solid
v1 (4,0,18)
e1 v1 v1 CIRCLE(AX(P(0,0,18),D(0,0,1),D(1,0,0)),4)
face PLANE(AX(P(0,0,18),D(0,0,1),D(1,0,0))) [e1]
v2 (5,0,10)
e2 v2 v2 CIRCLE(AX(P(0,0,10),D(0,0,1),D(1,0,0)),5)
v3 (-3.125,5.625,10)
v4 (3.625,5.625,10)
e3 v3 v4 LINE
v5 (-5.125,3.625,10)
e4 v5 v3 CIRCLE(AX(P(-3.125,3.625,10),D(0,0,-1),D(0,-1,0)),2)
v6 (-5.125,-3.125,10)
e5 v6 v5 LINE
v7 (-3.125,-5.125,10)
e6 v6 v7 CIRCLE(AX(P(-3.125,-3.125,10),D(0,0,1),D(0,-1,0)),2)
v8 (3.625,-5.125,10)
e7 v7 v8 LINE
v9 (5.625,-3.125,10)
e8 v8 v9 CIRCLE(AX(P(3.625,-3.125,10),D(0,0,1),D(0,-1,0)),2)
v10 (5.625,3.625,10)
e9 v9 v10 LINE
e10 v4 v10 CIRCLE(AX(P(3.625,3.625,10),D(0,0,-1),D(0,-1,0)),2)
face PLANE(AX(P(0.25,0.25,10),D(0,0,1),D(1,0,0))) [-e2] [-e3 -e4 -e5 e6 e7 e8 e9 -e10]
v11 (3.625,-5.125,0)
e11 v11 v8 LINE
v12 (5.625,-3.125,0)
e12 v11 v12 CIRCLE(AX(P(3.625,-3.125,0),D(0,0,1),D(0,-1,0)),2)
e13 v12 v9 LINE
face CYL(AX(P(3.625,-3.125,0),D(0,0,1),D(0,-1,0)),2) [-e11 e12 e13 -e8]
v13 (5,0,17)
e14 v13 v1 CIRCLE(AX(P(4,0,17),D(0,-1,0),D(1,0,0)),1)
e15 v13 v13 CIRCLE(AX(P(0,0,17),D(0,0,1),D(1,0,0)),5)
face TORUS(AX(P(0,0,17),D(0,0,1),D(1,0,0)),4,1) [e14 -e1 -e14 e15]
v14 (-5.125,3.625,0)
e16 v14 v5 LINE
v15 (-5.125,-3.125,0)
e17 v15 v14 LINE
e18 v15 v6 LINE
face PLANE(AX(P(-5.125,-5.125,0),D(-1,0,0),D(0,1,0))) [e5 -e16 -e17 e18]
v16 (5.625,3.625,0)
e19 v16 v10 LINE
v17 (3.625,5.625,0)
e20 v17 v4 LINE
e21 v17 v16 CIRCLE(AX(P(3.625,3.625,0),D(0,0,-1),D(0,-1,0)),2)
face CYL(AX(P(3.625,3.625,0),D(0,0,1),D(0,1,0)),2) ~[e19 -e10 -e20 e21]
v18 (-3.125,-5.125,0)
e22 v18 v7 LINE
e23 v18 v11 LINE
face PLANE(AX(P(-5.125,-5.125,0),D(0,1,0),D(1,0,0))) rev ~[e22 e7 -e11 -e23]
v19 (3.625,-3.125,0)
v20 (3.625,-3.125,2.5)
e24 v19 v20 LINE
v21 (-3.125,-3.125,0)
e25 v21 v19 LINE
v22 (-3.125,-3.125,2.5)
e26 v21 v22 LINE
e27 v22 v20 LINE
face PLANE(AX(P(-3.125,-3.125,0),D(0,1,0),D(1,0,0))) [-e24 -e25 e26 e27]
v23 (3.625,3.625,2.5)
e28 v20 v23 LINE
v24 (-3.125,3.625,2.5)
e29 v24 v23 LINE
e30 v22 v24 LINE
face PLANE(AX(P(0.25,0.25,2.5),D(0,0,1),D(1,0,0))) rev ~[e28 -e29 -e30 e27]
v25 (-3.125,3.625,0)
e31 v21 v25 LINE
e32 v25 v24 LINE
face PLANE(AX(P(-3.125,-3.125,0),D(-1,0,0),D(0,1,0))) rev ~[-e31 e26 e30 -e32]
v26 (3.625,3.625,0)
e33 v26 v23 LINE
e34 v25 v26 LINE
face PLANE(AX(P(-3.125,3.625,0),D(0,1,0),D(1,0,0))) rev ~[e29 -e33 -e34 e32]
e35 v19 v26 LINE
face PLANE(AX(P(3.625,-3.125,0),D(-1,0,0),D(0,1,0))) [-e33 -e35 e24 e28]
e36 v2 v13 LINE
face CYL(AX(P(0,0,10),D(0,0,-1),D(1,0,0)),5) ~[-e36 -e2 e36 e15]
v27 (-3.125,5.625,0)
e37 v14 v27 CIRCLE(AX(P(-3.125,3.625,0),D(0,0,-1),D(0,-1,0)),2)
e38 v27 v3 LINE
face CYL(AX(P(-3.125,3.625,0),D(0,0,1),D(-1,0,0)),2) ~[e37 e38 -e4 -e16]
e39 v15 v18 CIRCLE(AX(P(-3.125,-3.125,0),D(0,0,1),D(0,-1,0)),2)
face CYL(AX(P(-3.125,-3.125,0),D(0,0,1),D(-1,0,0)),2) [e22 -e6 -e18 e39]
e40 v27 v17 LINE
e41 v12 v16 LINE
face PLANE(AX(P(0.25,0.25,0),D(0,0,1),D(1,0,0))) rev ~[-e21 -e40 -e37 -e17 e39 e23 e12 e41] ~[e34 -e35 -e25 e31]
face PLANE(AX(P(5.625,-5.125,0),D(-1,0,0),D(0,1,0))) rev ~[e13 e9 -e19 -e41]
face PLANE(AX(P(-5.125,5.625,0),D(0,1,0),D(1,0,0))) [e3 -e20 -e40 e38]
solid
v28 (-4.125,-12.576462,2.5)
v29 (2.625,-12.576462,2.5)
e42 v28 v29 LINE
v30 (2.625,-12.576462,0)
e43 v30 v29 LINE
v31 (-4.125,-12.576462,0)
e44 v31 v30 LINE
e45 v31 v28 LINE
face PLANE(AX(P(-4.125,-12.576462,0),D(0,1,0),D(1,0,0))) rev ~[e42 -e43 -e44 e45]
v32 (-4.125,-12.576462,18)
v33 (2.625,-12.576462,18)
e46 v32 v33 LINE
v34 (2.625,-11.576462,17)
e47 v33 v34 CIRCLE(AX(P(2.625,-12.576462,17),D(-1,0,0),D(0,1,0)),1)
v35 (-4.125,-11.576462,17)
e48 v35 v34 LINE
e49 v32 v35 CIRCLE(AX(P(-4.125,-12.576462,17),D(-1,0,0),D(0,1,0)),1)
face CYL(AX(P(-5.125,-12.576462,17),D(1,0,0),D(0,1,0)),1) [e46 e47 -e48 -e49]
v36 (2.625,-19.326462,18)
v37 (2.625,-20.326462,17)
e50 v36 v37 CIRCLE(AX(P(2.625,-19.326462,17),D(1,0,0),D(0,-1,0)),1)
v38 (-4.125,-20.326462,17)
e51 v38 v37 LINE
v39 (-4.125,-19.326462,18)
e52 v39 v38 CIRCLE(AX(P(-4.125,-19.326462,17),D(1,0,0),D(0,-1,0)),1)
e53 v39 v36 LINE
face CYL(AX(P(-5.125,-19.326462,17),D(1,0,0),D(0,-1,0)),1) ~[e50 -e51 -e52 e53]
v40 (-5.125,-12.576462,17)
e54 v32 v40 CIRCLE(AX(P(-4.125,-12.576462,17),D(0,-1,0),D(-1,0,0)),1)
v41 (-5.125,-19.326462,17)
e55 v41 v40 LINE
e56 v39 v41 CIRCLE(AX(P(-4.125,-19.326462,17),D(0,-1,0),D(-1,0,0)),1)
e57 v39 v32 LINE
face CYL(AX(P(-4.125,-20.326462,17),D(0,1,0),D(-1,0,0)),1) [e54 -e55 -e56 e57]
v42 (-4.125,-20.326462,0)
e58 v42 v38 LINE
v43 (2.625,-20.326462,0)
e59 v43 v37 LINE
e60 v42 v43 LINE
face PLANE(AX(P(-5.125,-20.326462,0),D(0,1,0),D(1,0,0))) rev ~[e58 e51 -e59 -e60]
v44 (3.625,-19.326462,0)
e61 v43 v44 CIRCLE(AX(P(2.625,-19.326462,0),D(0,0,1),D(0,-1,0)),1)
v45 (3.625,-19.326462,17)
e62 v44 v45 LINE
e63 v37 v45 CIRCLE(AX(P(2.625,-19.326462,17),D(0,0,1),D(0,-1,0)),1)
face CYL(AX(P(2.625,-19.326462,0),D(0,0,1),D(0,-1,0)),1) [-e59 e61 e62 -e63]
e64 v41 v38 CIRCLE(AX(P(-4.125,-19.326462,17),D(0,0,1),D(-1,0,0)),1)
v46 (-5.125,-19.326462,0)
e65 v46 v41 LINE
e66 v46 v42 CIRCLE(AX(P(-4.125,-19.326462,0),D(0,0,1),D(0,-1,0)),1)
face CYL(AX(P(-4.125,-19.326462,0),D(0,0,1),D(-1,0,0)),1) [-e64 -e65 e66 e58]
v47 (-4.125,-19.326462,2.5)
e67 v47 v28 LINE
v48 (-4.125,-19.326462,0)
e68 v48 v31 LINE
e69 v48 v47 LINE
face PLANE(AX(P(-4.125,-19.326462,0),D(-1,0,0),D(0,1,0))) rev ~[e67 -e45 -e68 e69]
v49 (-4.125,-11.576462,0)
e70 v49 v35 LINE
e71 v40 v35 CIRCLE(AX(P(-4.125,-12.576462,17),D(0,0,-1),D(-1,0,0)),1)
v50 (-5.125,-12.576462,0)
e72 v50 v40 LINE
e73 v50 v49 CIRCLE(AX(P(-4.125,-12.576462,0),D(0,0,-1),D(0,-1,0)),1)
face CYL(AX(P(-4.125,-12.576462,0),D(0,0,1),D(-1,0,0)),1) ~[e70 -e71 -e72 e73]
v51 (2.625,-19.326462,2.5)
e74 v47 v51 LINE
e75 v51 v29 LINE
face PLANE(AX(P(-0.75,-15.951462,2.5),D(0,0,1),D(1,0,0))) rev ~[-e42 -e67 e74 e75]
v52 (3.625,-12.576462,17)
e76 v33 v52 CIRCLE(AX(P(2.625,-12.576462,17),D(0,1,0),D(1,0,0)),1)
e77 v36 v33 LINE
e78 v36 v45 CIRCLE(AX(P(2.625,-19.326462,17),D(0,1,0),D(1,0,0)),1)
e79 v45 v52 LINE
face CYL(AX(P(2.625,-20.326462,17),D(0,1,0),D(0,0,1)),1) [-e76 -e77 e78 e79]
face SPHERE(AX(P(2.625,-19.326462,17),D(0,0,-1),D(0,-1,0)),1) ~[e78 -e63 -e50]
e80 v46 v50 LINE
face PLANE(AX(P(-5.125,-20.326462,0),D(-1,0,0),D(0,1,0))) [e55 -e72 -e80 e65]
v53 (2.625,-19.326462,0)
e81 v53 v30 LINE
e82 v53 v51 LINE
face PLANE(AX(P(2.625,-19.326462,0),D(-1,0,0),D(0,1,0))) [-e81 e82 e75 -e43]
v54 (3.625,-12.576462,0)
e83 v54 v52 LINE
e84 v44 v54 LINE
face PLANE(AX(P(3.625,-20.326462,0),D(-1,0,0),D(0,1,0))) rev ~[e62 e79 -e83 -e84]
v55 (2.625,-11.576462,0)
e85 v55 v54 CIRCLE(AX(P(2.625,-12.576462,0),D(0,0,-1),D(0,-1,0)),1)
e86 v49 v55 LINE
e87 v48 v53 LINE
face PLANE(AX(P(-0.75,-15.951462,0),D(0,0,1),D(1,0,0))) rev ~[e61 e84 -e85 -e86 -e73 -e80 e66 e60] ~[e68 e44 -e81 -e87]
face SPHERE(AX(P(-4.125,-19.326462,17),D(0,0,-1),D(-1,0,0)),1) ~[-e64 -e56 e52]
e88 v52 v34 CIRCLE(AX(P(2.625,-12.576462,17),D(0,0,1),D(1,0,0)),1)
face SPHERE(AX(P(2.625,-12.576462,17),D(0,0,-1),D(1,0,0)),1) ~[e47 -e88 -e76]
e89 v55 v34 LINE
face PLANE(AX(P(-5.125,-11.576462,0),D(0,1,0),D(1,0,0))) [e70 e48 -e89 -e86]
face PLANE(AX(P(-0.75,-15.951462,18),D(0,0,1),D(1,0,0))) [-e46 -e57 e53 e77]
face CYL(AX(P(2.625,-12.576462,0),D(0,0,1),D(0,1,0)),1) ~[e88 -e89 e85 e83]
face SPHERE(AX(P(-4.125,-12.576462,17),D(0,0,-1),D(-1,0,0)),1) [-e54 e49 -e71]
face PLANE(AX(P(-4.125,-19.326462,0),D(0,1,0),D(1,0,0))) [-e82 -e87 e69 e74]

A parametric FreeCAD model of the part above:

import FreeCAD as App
import Part
import Sketcher
from FreeCAD import Vector
Q = App.Units.Quantity


def edges_at(feature, points):
    """Names of the edges that pass closest to the given points."""
    edges = feature.Shape.Edges
    near = lambda p: min(range(len(edges)), key=lambda i: edges[i].distToShape(Part.Vertex(*p))[0])
    return sorted({f"Edge{near(p) + 1}" for p in points})


def add_polygon(sketch, points):
    """Adds a closed chain of lines whose ends are joined by coincident constraints."""
    first, n = sketch.GeometryCount, len(points)
    for a, b in zip(points, points[1:] + points[:1]):
        sketch.addGeometry(Part.LineSegment(App.Vector(*a, 0), App.Vector(*b, 0)), False)
    for i in range(n):
        sketch.addConstraint(Sketcher.Constraint("Coincident", first + i, 2, first + (i + 1) % n, 1))

doc = App.newDocument("Part")
body = doc.addObject("PartDesign::Body", "Body")

# Sketch on XY plane
sketch1 = body.newObject("Sketcher::SketchObject", "Sketch")
sketch1.AttachmentSupport = (doc.getObject("XY_Plane"), [""])
sketch1.MapMode = "FlatFace"
add_polygon(sketch1, [(-5.125, 5.625), (-5.125, -5.125), (5.625, -5.125), (5.625, 5.625)])  # lines 0-3
sketch1.addConstraint([
    Sketcher.Constraint("Vertical", 0),
    Sketcher.Constraint("Horizontal", 1),
    Sketcher.Constraint("Vertical", 2),
    Sketcher.Constraint("Horizontal", 3),
    Sketcher.Constraint("Equal", 3, 0),
    Sketcher.Constraint("DistanceX", 1, 1, 1, 2, Q("10.75 mm")),
    Sketcher.Constraint("DistanceX", 0, 2, -1, 1, Q("5.125 mm")),
    Sketcher.Constraint("DistanceY", 0, 2, -1, 1, Q("5.125 mm")),
])
pad1 = body.newObject("PartDesign::Pad", "Pad")
pad1.Profile = sketch1
pad1.Length = 10

# Sketch on XY plane
sketch2 = body.newObject("Sketcher::SketchObject", "Sketch001")
sketch2.AttachmentSupport = (doc.getObject("XY_Plane"), [""])
sketch2.MapMode = "FlatFace"
add_polygon(sketch2, [(-3.125, 3.625), (-3.125, -3.125), (3.625, -3.125), (3.625, 3.625)])  # lines 0-3
sketch2.addConstraint([
    Sketcher.Constraint("Vertical", 0),
    Sketcher.Constraint("Horizontal", 1),
    Sketcher.Constraint("Vertical", 2),
    Sketcher.Constraint("Horizontal", 3),
    Sketcher.Constraint("Equal", 3, 0),
    Sketcher.Constraint("DistanceX", 1, 1, 1, 2, Q("6.75 mm")),
    Sketcher.Constraint("DistanceX", 0, 2, -1, 1, Q("3.125 mm")),
    Sketcher.Constraint("DistanceY", 0, 2, -1, 1, Q("3.125 mm")),
])
pocket1 = body.newObject("PartDesign::Pocket", "Pocket")
pocket1.Profile = sketch2
pocket1.Length = 2.5
pocket1.Reversed = True

# Sketch on XY plane
sketch3 = body.newObject("Sketcher::SketchObject", "Sketch002")
sketch3.AttachmentSupport = (doc.getObject("XY_Plane"), [""])
sketch3.MapMode = "FlatFace"
sketch3.AttachmentOffset = App.Placement(Vector(0, 0, 10), App.Rotation())
sketch3.addGeometry(Part.Circle(Vector(0, 0, 0), Vector(0, 0, 1), 5), False)
sketch3.addConstraint([
    Sketcher.Constraint("Coincident", 0, 3, -1, 1),
    Sketcher.Constraint("Diameter", 0, Q("10 mm")),
])
pad2 = body.newObject("PartDesign::Pad", "Pad001")
pad2.Profile = sketch3
pad2.Length = 8
doc.recompute()

fillet = body.newObject("PartDesign::Fillet", "Fillet")
fillet.Base = (pad2, edges_at(pad2, [
    (-5.125, -5.125, 5),
    (5.625, -5.125, 5),
    (5.625, 5.625, 5),
    (-5.125, 5.625, 5),
]))
fillet.Radius = 2
doc.recompute()

fillet2 = body.newObject("PartDesign::Fillet", "Fillet001")
fillet2.Base = (fillet, edges_at(fillet, [(-5, 0, 18)]))
fillet2.Radius = 1
body2 = doc.addObject("PartDesign::Body", "Body001")

# Sketch on XY plane
sketch4 = body2.newObject("Sketcher::SketchObject", "Sketch003")
sketch4.AttachmentSupport = (doc.getObject("XY_Plane001"), [""])
sketch4.MapMode = "FlatFace"
add_polygon(sketch4, [(-5.125, -11.576462), (-5.125, -20.326462), (3.625, -20.326462), (3.625, -11.576462)])  # lines 0-3
sketch4.addConstraint([
    Sketcher.Constraint("Vertical", 0),
    Sketcher.Constraint("Horizontal", 1),
    Sketcher.Constraint("Vertical", 2),
    Sketcher.Constraint("Horizontal", 3),
    Sketcher.Constraint("Equal", 3, 0),
    Sketcher.Constraint("DistanceX", 1, 1, 1, 2, Q("8.75 mm")),
    Sketcher.Constraint("DistanceX", 0, 2, -1, 1, Q("5.125 mm")),
    Sketcher.Constraint("DistanceY", 0, 2, -1, 1, Q("20.326462 mm")),
])
pad3 = body2.newObject("PartDesign::Pad", "Pad002")
pad3.Profile = sketch4
pad3.Length = 18

# Sketch on XY plane
sketch5 = body2.newObject("Sketcher::SketchObject", "Sketch004")
sketch5.AttachmentSupport = (doc.getObject("XY_Plane001"), [""])
sketch5.MapMode = "FlatFace"
add_polygon(sketch5, [(-4.125, -12.576462), (-4.125, -19.326462), (2.625, -19.326462), (2.625, -12.576462)])  # lines 0-3
sketch5.addConstraint([
    Sketcher.Constraint("Vertical", 0),
    Sketcher.Constraint("Horizontal", 1),
    Sketcher.Constraint("Vertical", 2),
    Sketcher.Constraint("Horizontal", 3),
    Sketcher.Constraint("Equal", 3, 0),
    Sketcher.Constraint("DistanceX", 1, 1, 1, 2, Q("6.75 mm")),
    Sketcher.Constraint("DistanceX", 0, 2, -1, 1, Q("4.125 mm")),
    Sketcher.Constraint("DistanceY", 0, 2, -1, 1, Q("19.326462 mm")),
])
pocket2 = body2.newObject("PartDesign::Pocket", "Pocket001")
pocket2.Profile = sketch5
pocket2.Length = 2.5
pocket2.Reversed = True
doc.recompute()

fillet3 = body2.newObject("PartDesign::Fillet", "Fillet002")
fillet3.Base = (pocket2, edges_at(pocket2, [
    (-5.125, -11.576, 9),
    (3.625, -11.576, 9),
    (-5.125, -20.326, 9),
    (3.625, -20.326, 9),
    (-5.125, -15.951, 18),
    (-0.75, -20.326, 18),
    (3.625, -15.951, 18),
    (-0.75, -11.576, 18),
]))
fillet3.Radius = 1

doc.recompute()
